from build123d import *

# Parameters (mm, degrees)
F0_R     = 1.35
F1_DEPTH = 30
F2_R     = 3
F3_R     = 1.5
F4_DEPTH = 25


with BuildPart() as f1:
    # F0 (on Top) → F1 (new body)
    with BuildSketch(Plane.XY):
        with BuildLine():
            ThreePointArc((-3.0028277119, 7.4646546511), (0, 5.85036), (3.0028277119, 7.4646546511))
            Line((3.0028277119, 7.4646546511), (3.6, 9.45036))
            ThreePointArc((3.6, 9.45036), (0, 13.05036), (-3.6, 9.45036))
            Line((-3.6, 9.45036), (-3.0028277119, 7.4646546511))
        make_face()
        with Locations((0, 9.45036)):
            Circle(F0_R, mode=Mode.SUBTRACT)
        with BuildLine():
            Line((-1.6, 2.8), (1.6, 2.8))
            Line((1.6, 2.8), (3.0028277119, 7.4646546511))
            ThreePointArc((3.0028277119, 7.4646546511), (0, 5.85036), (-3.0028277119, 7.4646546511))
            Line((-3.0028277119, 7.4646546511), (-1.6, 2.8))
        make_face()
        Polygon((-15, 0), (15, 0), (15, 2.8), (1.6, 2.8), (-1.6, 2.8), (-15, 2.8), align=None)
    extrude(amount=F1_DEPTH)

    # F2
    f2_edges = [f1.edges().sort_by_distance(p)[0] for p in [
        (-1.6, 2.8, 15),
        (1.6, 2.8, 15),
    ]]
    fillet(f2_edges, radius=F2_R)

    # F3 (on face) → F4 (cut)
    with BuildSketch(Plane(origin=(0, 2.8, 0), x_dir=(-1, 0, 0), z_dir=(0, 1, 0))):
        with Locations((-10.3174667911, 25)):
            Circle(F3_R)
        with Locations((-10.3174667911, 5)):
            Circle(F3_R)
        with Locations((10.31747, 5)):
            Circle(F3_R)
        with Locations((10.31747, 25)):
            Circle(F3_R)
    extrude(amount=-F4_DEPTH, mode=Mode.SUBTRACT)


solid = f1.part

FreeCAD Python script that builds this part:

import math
import FreeCAD as App
import Part
import Sketcher
from FreeCAD import Vector


def edges_at(feature, points):
    """Names of the edges that pass closest to the given points."""
    edges = feature.Shape.Edges
    near = lambda p: min(range(len(edges)), key=lambda i: edges[i].distToShape(Part.Vertex(*p))[0])
    return sorted({f"Edge{near(p) + 1}" for p in points})

doc = App.newDocument("Part")
body = doc.addObject("PartDesign::Body", "Body")

# Sketch on XY plane
sketch1 = body.newObject("Sketcher::SketchObject", "Sketch")
sketch1.AttachmentSupport = (doc.getObject("XY_Plane"), [""])
sketch1.MapMode = "FlatFace"
sketch1.addGeometry([
    Part.LineSegment(Vector(-3.6, 9.5, 0), Vector(-3, 7.5, 0)),  # 0
    Part.LineSegment(Vector(-3, 7.5, 0), Vector(-1.6, 2.8, 0)),  # 1
    Part.LineSegment(Vector(-1.6, 2.8, 0), Vector(-15, 2.8, 0)),  # 2
    Part.LineSegment(Vector(-15, 2.8, 0), Vector(-15, 0, 0)),  # 3
    Part.LineSegment(Vector(-15, 0, 0), Vector(15, 0, 0)),  # 4
    Part.LineSegment(Vector(15, 0, 0), Vector(15, 2.8, 0)),  # 5
    Part.LineSegment(Vector(15, 2.8, 0), Vector(1.6, 2.8, 0)),  # 6
    Part.LineSegment(Vector(1.6, 2.8, 0), Vector(3, 7.5, 0)),  # 7
    Part.LineSegment(Vector(3, 7.5, 0), Vector(3.6, 9.5, 0)),  # 8
    Part.ArcOfCircle(Part.Circle(Vector(0, 9.5, 0), Vector(0, 0, 1), 3.6), math.radians(0), math.radians(180)),  # 9
    Part.Circle(Vector(0, 9.5, 0), Vector(0, 0, 1), 1.4),  # 10
], False)
sketch1.addConstraint([
    Sketcher.Constraint("Coincident", 0, 2, 1, 1),
    Sketcher.Constraint("Coincident", 1, 2, 2, 1),
    Sketcher.Constraint("Coincident", 2, 2, 3, 1),
    Sketcher.Constraint("Coincident", 3, 2, 4, 1),
    Sketcher.Constraint("Coincident", 4, 2, 5, 1),
    Sketcher.Constraint("Coincident", 5, 2, 6, 1),
    Sketcher.Constraint("Coincident", 6, 2, 7, 1),
    Sketcher.Constraint("Coincident", 7, 2, 8, 1),
    Sketcher.Constraint("Coincident", 8, 2, 9, 1),
    Sketcher.Constraint("Coincident", 9, 2, 0, 1),
    Sketcher.Constraint("Horizontal", 2),
    Sketcher.Constraint("Vertical", 3),
    Sketcher.Constraint("Horizontal", 4),
    Sketcher.Constraint("Vertical", 5),
    Sketcher.Constraint("Horizontal", 6),
    Sketcher.Constraint("Coincident", 10, 3, 9, 3),
    Sketcher.Constraint("Symmetric", 3, 2, 4, 2, -1, 1),
    Sketcher.Constraint("Symmetric", 1, 2, 6, 2, -2),
    Sketcher.Constraint("Symmetric", 0, 2, 7, 2, -2),
    Sketcher.Constraint("Symmetric", 8, 2, 9, 2, -2),
    Sketcher.Constraint("Parallel", 0, 1),
    Sketcher.Constraint("Horizontal", 10, 3, 8, 2),
    Sketcher.Constraint("Diameter", 10, 2.7),
    Sketcher.Constraint("Radius", 9, 3.6),
    Sketcher.Constraint("DistanceX", 4, 1, 4, 2, 30.0),
    Sketcher.Constraint("DistanceX", 2, 2, 2, 1, 13.4),
    Sketcher.Constraint("DistanceY", 3, 2, 3, 1, 2.8),
    Sketcher.Constraint("Distance", 1, 4.87103),
    Sketcher.Constraint("DistanceY", -1, 1, 9, 3, 9.45036),
])
pad1 = body.newObject("PartDesign::Pad", "Pad")
pad1.Profile = sketch1
pad1.Length = 30
doc.recompute()

fillet = body.newObject("PartDesign::Fillet", "Fillet")
fillet.Base = (pad1, edges_at(pad1, [(-1.6, 2.8, 15), (1.6, 2.8, 15)]))
fillet.Radius = 3

# Sketch on XZ plane
sketch2 = body.newObject("Sketcher::SketchObject", "Sketch001")
sketch2.AttachmentSupport = (doc.getObject("XZ_Plane"), [""])
sketch2.MapMode = "FlatFace"
sketch2.AttachmentOffset = App.Placement(Vector(0, 0, -2.8), App.Rotation())
sketch2.addGeometry([
    Part.Circle(Vector(10.3, 25, 0), Vector(0, 0, 1), 1.5),
    Part.Circle(Vector(10.3, 5, 0), Vector(0, 0, 1), 1.5),
    Part.Circle(Vector(-10.3, 5, 0), Vector(0, 0, 1), 1.5),
    Part.Circle(Vector(-10.3, 25, 0), Vector(0, 0, 1), 1.5),
], False)
sketch2.addConstraint([
    Sketcher.Constraint("Equal", 0, 1),
    Sketcher.Constraint("Equal", 1, 2),
    Sketcher.Constraint("Equal", 2, 3),
    Sketcher.Constraint("Symmetric", 1, 3, 2, 3, -2),
    Sketcher.Constraint("Symmetric", 0, 3, 3, 3, -2),
    Sketcher.Constraint("Vertical", 0, 3, 1, 3),
    Sketcher.Constraint("Diameter", 0, 3.0),
    Sketcher.Constraint("DistanceY", -1, 1, 0, 3, 25.0),
    Sketcher.Constraint("DistanceY", -1, 1, 1, 3, 5.0),
    Sketcher.Constraint("DistanceX", 2, 3, -1, 1, 10.31747),
])
pocket1 = body.newObject("PartDesign::Pocket", "Pocket")
pocket1.Profile = sketch2
pocket1.Length = 25
pocket1.Reversed = True

doc.recompute()
